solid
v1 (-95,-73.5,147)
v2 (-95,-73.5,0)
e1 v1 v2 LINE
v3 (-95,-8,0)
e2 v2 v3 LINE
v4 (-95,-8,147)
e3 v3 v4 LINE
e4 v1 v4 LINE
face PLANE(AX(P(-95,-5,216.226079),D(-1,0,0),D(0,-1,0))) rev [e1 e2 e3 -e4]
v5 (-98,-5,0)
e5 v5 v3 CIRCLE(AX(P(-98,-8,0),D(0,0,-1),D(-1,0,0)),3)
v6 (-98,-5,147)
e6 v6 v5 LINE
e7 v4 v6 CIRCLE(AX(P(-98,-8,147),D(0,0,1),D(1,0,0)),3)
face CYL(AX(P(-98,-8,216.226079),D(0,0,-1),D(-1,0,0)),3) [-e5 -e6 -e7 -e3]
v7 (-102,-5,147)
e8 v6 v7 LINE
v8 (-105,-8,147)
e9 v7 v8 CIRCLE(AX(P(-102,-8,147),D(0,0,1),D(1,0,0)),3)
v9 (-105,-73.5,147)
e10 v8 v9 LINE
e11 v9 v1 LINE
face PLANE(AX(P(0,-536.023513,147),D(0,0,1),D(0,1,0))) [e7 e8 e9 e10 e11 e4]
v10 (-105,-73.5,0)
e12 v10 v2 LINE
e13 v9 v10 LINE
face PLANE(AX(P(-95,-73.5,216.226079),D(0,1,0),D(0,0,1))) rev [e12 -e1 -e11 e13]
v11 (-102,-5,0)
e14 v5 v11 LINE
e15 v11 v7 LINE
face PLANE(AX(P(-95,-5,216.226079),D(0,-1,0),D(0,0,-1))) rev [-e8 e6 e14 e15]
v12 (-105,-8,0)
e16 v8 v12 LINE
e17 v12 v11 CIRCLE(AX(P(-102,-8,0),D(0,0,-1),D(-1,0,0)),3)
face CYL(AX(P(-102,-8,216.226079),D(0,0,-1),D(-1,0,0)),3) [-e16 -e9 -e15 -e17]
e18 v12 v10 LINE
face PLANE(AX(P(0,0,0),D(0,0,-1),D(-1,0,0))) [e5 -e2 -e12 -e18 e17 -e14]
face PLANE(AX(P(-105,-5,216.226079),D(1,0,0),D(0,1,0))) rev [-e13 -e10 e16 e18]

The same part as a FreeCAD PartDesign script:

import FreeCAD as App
import Part
import Sketcher

V = App.Vector
Q = App.Units.Quantity


def edges_at(feature, points):
    """Names of the edges that pass closest to the given points."""
    edges = feature.Shape.Edges
    near = lambda p: min(range(len(edges)), key=lambda i: edges[i].distToShape(Part.Vertex(*p))[0])
    return sorted({f"Edge{near(p) + 1}" for p in points})


def add_polygon(sketch, points):
    """Adds a closed chain of lines whose ends are joined by coincident constraints."""
    first, n = sketch.GeometryCount, len(points)
    for a, b in zip(points, points[1:] + points[:1]):
        sketch.addGeometry(Part.LineSegment(App.Vector(*a, 0), App.Vector(*b, 0)), False)
    for i in range(n):
        sketch.addConstraint(Sketcher.Constraint("Coincident", first + i, 2, first + (i + 1) % n, 1))

doc = App.newDocument("Part")
params = doc.addObject("Spreadsheet::Sheet", "Params")
for row, (alias, value) in enumerate([
    ("sketch1_width", "10 mm"),
    ("sketch1_height", "68.5 mm"),
    ("pad1_length", "147 mm"),
    ("fillet_radius", "3 mm"),
], start=1):
    params.set(f"A{row}", alias)
    params.set(f"B{row}", "=" + value)
    params.setAlias(f"B{row}", alias)

body = doc.addObject("PartDesign::Body", "Body")

# Sketch on XY plane
sketch1 = body.newObject("Sketcher::SketchObject", "Sketch")
sketch1.AttachmentSupport = (doc.getObject("XY_Plane"), [""])
sketch1.MapMode = "FlatFace"
add_polygon(sketch1, [(-105, -5), (-105, -74), (-95, -74), (-95, -5)])  # lines 0-3
sketch1.addConstraint([
    Sketcher.Constraint("Vertical", 0),
    Sketcher.Constraint("Horizontal", 1),
    Sketcher.Constraint("Vertical", 2),
    Sketcher.Constraint("Horizontal", 3),
    Sketcher.Constraint("DistanceX", 1, 1, 1, 2, Q("10 mm")),
    Sketcher.Constraint("DistanceY", 0, 2, 0, 1, Q("68.5 mm")),
    Sketcher.Constraint("DistanceX", 0, 2, -1, 1, Q("105 mm")),
    Sketcher.Constraint("DistanceY", 2, 2, -1, 1, Q("5 mm")),
])
sketch1.setExpression("Constraints[8]", "Params.sketch1_width")
sketch1.setExpression("Constraints[9]", "Params.sketch1_height")
pad1 = body.newObject("PartDesign::Pad", "Pad")
pad1.Profile = sketch1
pad1.setExpression("Length", "Params.pad1_length")
doc.recompute()

fillet = body.newObject("PartDesign::Fillet", "Fillet")
fillet.Base = (pad1, edges_at(pad1, [(-105, -5, 73.5), (-95, -5, 73.5)]))
fillet.setExpression("Radius", "Params.fillet_radius")

doc.recompute()
